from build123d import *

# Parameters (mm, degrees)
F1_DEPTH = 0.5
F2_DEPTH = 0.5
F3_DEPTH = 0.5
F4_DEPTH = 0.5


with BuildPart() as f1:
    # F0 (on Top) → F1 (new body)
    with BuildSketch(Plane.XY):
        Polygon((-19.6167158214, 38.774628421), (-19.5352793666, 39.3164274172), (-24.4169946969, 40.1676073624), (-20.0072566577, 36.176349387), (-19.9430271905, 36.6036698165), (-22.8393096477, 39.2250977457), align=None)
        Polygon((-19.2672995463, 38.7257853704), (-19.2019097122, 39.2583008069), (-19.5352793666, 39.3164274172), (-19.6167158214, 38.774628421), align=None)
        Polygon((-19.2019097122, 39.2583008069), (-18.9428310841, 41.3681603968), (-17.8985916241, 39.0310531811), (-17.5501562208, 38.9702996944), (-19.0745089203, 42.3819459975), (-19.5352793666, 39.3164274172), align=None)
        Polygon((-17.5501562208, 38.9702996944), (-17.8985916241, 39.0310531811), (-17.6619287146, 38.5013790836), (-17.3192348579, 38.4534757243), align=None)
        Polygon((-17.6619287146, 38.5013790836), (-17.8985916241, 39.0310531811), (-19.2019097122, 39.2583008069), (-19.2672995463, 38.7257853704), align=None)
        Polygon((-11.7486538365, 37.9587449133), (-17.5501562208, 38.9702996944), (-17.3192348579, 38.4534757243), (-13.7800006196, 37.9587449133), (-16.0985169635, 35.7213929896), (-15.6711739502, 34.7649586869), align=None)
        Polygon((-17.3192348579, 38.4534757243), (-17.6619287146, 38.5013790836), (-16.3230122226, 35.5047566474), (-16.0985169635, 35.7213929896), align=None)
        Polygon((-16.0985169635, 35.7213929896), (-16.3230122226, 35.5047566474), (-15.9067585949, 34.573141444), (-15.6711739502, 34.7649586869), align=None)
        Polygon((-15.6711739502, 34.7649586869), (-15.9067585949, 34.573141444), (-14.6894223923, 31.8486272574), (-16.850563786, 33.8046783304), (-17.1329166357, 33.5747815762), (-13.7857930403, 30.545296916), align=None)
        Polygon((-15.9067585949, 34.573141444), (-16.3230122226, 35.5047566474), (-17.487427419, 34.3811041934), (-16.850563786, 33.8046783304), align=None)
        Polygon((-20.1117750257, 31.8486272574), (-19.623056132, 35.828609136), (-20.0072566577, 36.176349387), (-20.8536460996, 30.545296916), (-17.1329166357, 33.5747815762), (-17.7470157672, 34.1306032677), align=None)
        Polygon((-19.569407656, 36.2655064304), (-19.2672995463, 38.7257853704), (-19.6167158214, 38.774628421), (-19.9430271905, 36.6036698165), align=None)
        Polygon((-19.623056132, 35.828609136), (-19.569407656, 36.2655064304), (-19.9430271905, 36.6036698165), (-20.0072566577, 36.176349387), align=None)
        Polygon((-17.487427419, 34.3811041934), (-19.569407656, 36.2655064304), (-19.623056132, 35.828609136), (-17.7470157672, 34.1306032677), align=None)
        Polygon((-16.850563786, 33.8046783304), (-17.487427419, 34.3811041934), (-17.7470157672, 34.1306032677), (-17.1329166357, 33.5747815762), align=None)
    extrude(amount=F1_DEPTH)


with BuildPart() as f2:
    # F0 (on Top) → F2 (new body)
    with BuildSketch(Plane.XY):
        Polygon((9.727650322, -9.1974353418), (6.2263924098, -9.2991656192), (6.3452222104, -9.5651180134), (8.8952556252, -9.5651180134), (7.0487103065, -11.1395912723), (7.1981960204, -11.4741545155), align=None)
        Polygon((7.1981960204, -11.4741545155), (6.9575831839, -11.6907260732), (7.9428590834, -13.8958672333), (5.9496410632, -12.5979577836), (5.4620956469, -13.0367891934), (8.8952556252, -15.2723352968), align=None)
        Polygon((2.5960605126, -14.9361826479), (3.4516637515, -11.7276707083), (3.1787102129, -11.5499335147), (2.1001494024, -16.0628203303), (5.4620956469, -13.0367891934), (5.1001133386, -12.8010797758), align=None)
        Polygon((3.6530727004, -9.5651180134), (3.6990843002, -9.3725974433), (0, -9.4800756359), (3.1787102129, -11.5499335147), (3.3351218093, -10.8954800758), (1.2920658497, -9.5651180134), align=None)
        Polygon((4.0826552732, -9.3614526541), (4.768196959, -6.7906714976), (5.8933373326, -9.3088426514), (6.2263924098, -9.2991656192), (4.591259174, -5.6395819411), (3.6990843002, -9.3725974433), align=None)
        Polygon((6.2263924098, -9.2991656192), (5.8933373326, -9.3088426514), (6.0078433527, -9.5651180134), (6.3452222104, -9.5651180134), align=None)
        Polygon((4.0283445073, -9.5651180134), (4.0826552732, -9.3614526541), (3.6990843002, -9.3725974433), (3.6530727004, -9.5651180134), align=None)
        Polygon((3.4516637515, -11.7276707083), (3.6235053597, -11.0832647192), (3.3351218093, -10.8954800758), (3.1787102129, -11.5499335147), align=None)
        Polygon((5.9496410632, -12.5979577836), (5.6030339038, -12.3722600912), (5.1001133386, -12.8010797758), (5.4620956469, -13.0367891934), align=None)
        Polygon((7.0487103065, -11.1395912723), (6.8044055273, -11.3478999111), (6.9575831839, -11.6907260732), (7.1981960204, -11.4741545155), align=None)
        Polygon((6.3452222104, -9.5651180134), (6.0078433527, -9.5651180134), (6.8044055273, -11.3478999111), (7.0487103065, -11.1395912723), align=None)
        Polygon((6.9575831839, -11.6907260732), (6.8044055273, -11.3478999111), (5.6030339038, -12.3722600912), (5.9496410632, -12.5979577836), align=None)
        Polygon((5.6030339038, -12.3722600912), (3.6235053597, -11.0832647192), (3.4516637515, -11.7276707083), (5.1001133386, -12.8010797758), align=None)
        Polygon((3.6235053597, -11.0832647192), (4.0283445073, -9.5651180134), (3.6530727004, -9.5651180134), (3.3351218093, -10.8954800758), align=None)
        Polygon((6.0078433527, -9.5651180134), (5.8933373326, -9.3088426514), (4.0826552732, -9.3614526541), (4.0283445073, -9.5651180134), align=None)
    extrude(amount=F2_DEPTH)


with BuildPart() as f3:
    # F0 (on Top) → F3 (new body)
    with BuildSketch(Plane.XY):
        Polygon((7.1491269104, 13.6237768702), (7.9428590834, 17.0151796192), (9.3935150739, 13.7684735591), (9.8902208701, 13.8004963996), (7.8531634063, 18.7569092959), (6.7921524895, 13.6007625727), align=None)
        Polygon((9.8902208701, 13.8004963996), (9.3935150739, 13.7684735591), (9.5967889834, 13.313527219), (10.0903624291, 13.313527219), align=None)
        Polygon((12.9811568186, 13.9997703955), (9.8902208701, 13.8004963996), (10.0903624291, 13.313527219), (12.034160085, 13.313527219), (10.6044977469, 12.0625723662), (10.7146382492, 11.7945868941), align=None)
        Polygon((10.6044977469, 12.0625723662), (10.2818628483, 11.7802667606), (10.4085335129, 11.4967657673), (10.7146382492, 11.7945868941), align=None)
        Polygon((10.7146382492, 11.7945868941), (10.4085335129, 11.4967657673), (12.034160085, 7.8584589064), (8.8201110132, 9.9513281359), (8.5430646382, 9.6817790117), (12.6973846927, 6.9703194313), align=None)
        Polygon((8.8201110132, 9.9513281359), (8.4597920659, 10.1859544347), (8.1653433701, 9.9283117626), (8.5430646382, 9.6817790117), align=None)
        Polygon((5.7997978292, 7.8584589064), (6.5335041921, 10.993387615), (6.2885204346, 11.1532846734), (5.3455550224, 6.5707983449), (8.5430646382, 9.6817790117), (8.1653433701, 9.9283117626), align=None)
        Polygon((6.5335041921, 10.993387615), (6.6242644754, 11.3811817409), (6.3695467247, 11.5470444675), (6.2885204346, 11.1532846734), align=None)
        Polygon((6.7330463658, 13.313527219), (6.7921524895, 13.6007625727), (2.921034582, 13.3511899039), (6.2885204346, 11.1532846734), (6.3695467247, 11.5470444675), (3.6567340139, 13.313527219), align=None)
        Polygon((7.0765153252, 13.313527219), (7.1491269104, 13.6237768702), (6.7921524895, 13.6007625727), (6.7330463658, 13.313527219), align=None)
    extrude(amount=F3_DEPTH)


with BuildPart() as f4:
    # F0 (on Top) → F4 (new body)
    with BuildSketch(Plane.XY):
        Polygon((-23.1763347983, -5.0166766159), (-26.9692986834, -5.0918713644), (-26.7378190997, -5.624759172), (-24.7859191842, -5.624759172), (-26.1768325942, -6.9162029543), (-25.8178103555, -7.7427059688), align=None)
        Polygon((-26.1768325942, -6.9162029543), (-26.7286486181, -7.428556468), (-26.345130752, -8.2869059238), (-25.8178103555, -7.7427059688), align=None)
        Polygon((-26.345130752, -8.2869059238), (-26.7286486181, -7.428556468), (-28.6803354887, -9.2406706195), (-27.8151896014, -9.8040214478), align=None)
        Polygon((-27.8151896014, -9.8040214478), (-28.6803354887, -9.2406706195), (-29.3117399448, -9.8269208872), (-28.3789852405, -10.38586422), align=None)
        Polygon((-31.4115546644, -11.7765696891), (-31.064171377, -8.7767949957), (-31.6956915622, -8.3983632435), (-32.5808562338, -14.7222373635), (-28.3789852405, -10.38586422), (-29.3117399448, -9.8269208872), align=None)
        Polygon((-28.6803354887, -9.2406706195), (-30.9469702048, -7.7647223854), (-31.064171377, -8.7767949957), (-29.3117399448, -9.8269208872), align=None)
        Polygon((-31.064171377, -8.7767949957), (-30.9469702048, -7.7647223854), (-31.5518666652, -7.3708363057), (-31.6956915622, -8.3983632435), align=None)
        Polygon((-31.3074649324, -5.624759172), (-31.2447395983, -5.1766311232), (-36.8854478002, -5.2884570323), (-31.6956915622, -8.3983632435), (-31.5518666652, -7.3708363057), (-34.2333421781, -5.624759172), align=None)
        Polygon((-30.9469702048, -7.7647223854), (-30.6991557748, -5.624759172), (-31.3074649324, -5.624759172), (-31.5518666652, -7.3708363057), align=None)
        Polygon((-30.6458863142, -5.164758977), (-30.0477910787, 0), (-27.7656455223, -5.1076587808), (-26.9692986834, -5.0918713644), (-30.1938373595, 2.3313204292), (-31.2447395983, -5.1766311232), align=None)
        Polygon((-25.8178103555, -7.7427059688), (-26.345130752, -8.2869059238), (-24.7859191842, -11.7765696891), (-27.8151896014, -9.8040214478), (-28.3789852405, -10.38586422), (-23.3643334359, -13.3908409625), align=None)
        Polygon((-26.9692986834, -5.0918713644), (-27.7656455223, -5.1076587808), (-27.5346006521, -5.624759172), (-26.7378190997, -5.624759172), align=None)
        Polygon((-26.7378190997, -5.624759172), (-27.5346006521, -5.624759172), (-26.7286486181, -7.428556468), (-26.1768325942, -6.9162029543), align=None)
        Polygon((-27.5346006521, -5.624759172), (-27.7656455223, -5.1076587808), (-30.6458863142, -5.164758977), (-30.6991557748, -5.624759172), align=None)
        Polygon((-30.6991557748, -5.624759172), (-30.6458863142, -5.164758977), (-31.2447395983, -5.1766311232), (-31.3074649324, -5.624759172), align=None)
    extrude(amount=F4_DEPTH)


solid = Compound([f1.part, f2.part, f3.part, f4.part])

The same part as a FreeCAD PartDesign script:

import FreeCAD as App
import Part
import Sketcher

V = App.Vector

doc = App.newDocument("Part")
params = doc.addObject("Spreadsheet::Sheet", "Params")
for row, (alias, value) in enumerate([
    ("pad1_length", "0.5 mm"),
    ("pad2_length", "0.5 mm"),
    ("pad3_length", "0.5 mm"),
    ("pad4_length", "0.5 mm"),
], start=1):
    params.set(f"A{row}", alias)
    params.set(f"B{row}", "=" + value)
    params.setAlias(f"B{row}", alias)

body = doc.addObject("PartDesign::Body", "Body")

sketch1 = body.newObject("Sketcher::SketchObject", "Sketch")
sketch1.AttachmentSupport = (doc.getObject("XY_Plane"), [""])
sketch1.MapMode = "FlatFace"
sketch1.addGeometry(Part.LineSegment(V(-20.9, 30.5, 0), V(-17.1, 33.6, 0)), False)
sketch1.addGeometry(Part.LineSegment(V(-17.1, 33.6, 0), V(-13.8, 30.5, 0)), False)
sketch1.addGeometry(Part.LineSegment(V(-13.8, 30.5, 0), V(-15.7, 34.8, 0)), False)
sketch1.addGeometry(Part.LineSegment(V(-15.7, 34.8, 0), V(-11.7, 38, 0)), False)
sketch1.addGeometry(Part.LineSegment(V(-11.7, 38, 0), V(-17.6, 39, 0)), False)
sketch1.addGeometry(Part.LineSegment(V(-17.6, 39, 0), V(-19.1, 42.4, 0)), False)
sketch1.addGeometry(Part.LineSegment(V(-19.1, 42.4, 0), V(-19.5, 39.3, 0)), False)
sketch1.addGeometry(Part.LineSegment(V(-19.5, 39.3, 0), V(-24.4, 40.2, 0)), False)
sketch1.addGeometry(Part.LineSegment(V(-24.4, 40.2, 0), V(-20, 36.2, 0)), False)
sketch1.addGeometry(Part.LineSegment(V(-20, 36.2, 0), V(-20.9, 30.5, 0)), False)
sketch1.addGeometry(Part.LineSegment(V(-19.6, 35.8, 0), V(-17.7, 34.1, 0)), False)
sketch1.addGeometry(Part.LineSegment(V(-17.7, 34.1, 0), V(-20.1, 31.8, 0)), False)
sketch1.addGeometry(Part.LineSegment(V(-20.1, 31.8, 0), V(-19.6, 35.8, 0)), False)
sketch1.addGeometry(Part.LineSegment(V(-14.7, 31.8, 0), V(-16.9, 33.8, 0)), False)
sketch1.addGeometry(Part.LineSegment(V(-16.9, 33.8, 0), V(-15.9, 34.6, 0)), False)
sketch1.addGeometry(Part.LineSegment(V(-15.9, 34.6, 0), V(-14.7, 31.8, 0)), False)
sketch1.addGeometry(Part.LineSegment(V(-16.3, 35.5, 0), V(-17.5, 34.4, 0)), False)
sketch1.addGeometry(Part.LineSegment(V(-17.5, 34.4, 0), V(-19.6, 36.3, 0)), False)
sketch1.addGeometry(Part.LineSegment(V(-19.6, 36.3, 0), V(-19.3, 38.7, 0)), False)
sketch1.addGeometry(Part.LineSegment(V(-19.3, 38.7, 0), V(-17.7, 38.5, 0)), False)
sketch1.addGeometry(Part.LineSegment(V(-17.7, 38.5, 0), V(-16.3, 35.5, 0)), False)
sketch1.addGeometry(Part.LineSegment(V(-19.6, 38.8, 0), V(-19.9, 36.6, 0)), False)
sketch1.addGeometry(Part.LineSegment(V(-19.9, 36.6, 0), V(-22.8, 39.2, 0)), False)
sketch1.addGeometry(Part.LineSegment(V(-22.8, 39.2, 0), V(-19.6, 38.8, 0)), False)
sketch1.addGeometry(Part.LineSegment(V(-19.2, 39.3, 0), V(-18.9, 41.4, 0)), False)
sketch1.addGeometry(Part.LineSegment(V(-18.9, 41.4, 0), V(-17.9, 39, 0)), False)
sketch1.addGeometry(Part.LineSegment(V(-17.9, 39, 0), V(-19.2, 39.3, 0)), False)
sketch1.addGeometry(Part.LineSegment(V(-13.8, 38, 0), V(-16.1, 35.7, 0)), False)
sketch1.addGeometry(Part.LineSegment(V(-16.1, 35.7, 0), V(-17.3, 38.5, 0)), False)
sketch1.addGeometry(Part.LineSegment(V(-17.3, 38.5, 0), V(-13.8, 38, 0)), False)
sketch1.addConstraint(Sketcher.Constraint("Coincident", 0, 2, 1, 1))
sketch1.addConstraint(Sketcher.Constraint("Coincident", 1, 2, 2, 1))
sketch1.addConstraint(Sketcher.Constraint("Coincident", 2, 2, 3, 1))
sketch1.addConstraint(Sketcher.Constraint("Coincident", 3, 2, 4, 1))
sketch1.addConstraint(Sketcher.Constraint("Coincident", 4, 2, 5, 1))
sketch1.addConstraint(Sketcher.Constraint("Coincident", 5, 2, 6, 1))
sketch1.addConstraint(Sketcher.Constraint("Coincident", 6, 2, 7, 1))
sketch1.addConstraint(Sketcher.Constraint("Coincident", 7, 2, 8, 1))
sketch1.addConstraint(Sketcher.Constraint("Coincident", 8, 2, 9, 1))
sketch1.addConstraint(Sketcher.Constraint("Coincident", 9, 2, 0, 1))
sketch1.addConstraint(Sketcher.Constraint("Coincident", 10, 2, 11, 1))
sketch1.addConstraint(Sketcher.Constraint("Coincident", 11, 2, 12, 1))
sketch1.addConstraint(Sketcher.Constraint("Coincident", 12, 2, 10, 1))
sketch1.addConstraint(Sketcher.Constraint("Coincident", 13, 2, 14, 1))
sketch1.addConstraint(Sketcher.Constraint("Coincident", 14, 2, 15, 1))
sketch1.addConstraint(Sketcher.Constraint("Coincident", 15, 2, 13, 1))
sketch1.addConstraint(Sketcher.Constraint("Coincident", 16, 2, 17, 1))
sketch1.addConstraint(Sketcher.Constraint("Coincident", 17, 2, 18, 1))
sketch1.addConstraint(Sketcher.Constraint("Coincident", 18, 2, 19, 1))
sketch1.addConstraint(Sketcher.Constraint("Coincident", 19, 2, 20, 1))
sketch1.addConstraint(Sketcher.Constraint("Coincident", 20, 2, 16, 1))
sketch1.addConstraint(Sketcher.Constraint("Coincident", 21, 2, 22, 1))
sketch1.addConstraint(Sketcher.Constraint("Coincident", 22, 2, 23, 1))
sketch1.addConstraint(Sketcher.Constraint("Coincident", 23, 2, 21, 1))
sketch1.addConstraint(Sketcher.Constraint("Coincident", 24, 2, 25, 1))
sketch1.addConstraint(Sketcher.Constraint("Coincident", 25, 2, 26, 1))
sketch1.addConstraint(Sketcher.Constraint("Coincident", 26, 2, 24, 1))
sketch1.addConstraint(Sketcher.Constraint("Coincident", 27, 2, 28, 1))
sketch1.addConstraint(Sketcher.Constraint("Coincident", 28, 2, 29, 1))
sketch1.addConstraint(Sketcher.Constraint("Coincident", 29, 2, 27, 1))
sketch1.addConstraint(Sketcher.Constraint("Parallel", 0, 3))
sketch1.addConstraint(Sketcher.Constraint("Parallel", 2, 5))
sketch1.addConstraint(Sketcher.Constraint("Parallel", 4, 7))
sketch1.addConstraint(Sketcher.Constraint("Parallel", 1, 8))
sketch1.addConstraint(Sketcher.Constraint("Parallel", 6, 9))
sketch1.addConstraint(Sketcher.Constraint("Parallel", 8, 10))
sketch1.addConstraint(Sketcher.Constraint("Parallel", 10, 13))
sketch1.addConstraint(Sketcher.Constraint("Parallel", 3, 14))
sketch1.addConstraint(Sketcher.Constraint("Parallel", 5, 15))
sketch1.addConstraint(Sketcher.Constraint("Parallel", 11, 16))
sketch1.addConstraint(Sketcher.Constraint("Parallel", 13, 17))
sketch1.addConstraint(Sketcher.Constraint("Parallel", 12, 18))
sketch1.addConstraint(Sketcher.Constraint("Parallel", 15, 20))
sketch1.addConstraint(Sketcher.Constraint("Parallel", 9, 21))
sketch1.addConstraint(Sketcher.Constraint("Parallel", 17, 22))
sketch1.addConstraint(Sketcher.Constraint("Parallel", 19, 23))
sketch1.addConstraint(Sketcher.Constraint("Parallel", 18, 24))
sketch1.addConstraint(Sketcher.Constraint("Parallel", 20, 25))
sketch1.addConstraint(Sketcher.Constraint("Parallel", 7, 26))
sketch1.addConstraint(Sketcher.Constraint("Parallel", 16, 27))
sketch1.addConstraint(Sketcher.Constraint("Parallel", 25, 28))
sketch1.addConstraint(Sketcher.Constraint("Parallel", 23, 29))
sketch1.addConstraint(Sketcher.Constraint("Horizontal", 1, 2, 9, 2))
sketch1.addConstraint(Sketcher.Constraint("Horizontal", 11, 2, 15, 2))
sketch1.addConstraint(Sketcher.Constraint("Horizontal", 3, 2, 29, 2))
sketch1.addConstraint(Sketcher.Constraint("DistanceX", 29, 2, -1, 1, 13.780001))
sketch1.addConstraint(Sketcher.Constraint("DistanceY", 4, 2, 26, 2, 0.288001))
sketch1.addConstraint(Sketcher.Constraint("DistanceY", -1, 1, 4, 2, 38.9703))
sketch1.addConstraint(Sketcher.Constraint("DistanceX", 18, 2, -1, 1, 19.2673))
sketch1.addConstraint(Sketcher.Constraint("DistanceY", 3, 2, 5, 2, 4.423201))
sketch1.addConstraint(Sketcher.Constraint("DistanceX", 8, 2, 4, 2, 2.4571))
sketch1.addConstraint(Sketcher.Constraint("DistanceX", 10, 2, 0, 2, 0.614099))
sketch1.addConstraint(Sketcher.Constraint("DistanceX", 11, 2, 2, 2, 4.440601))
sketch1.addConstraint(Sketcher.Constraint("DistanceX", 8, 2, 12, 2, 0.384201))
sketch1.addConstraint(Sketcher.Constraint("DistanceY", 10, 2, 16, 2, 0.250501))
sketch1.addConstraint(Sketcher.Constraint("DistanceY", 23, 2, 6, 2, 0.541799))
sketch1.addConstraint(Sketcher.Constraint("Distance", 2, 4.62171))
sketch1.addConstraint(Sketcher.Constraint("Distance", 4, 5.88903))
sketch1.addConstraint(Sketcher.Constraint("Distance", 11, 3.286259))
sketch1.addConstraint(Sketcher.Constraint("Distance", 14, 1.217088))
sketch1.addConstraint(Sketcher.Constraint("Distance", 18, 2.478758))
sketch1.addConstraint(Sketcher.Constraint("Distance", 19, 1.620979))
sketch1.addConstraint(Sketcher.Constraint("Distance", 20, 3.28214))
sketch1.addConstraint(Sketcher.Constraint("Distance", 22, 3.906448))
sketch1.addConstraint(Sketcher.Constraint("Distance", 26, 1.322981))
sketch1.addConstraint(Sketcher.Constraint("DistanceY", -1, 1, 0, 2, 33.574782))
sketch1.addConstraint(Sketcher.Constraint("DistanceY", -1, 1, 2, 2, 34.764959))
sketch1.addConstraint(Sketcher.Constraint("DistanceX", 5, 2, -1, 1, 19.074509))
sketch1.addConstraint(Sketcher.Constraint("DistanceX", 6, 2, -1, 1, 19.535279))
sketch1.addConstraint(Sketcher.Constraint("DistanceY", -1, 1, 8, 2, 36.176349))
sketch1.addConstraint(Sketcher.Constraint("DistanceY", -1, 1, 12, 2, 35.828609))
sketch1.addConstraint(Sketcher.Constraint("DistanceY", -1, 1, 13, 2, 33.804678))
sketch1.addConstraint(Sketcher.Constraint("DistanceX", 14, 2, -1, 1, 15.906759))
sketch1.addConstraint(Sketcher.Constraint("DistanceY", -1, 1, 14, 2, 34.573141))
sketch1.addConstraint(Sketcher.Constraint("DistanceX", 19, 2, -1, 1, 17.661929))
sketch1.addConstraint(Sketcher.Constraint("DistanceY", -1, 1, 19, 2, 38.501379))
sketch1.addConstraint(Sketcher.Constraint("DistanceY", -1, 1, 21, 2, 36.60367))
sketch1.addConstraint(Sketcher.Constraint("DistanceX", 22, 2, -1, 1, 22.83931))
sketch1.addConstraint(Sketcher.Constraint("DistanceX", 24, 2, -1, 1, 18.942831))
sketch1.addConstraint(Sketcher.Constraint("DistanceX", 27, 2, 14, 2, 0.191758))
pad1 = body.newObject("PartDesign::Pad", "Pad")
pad1.Profile = sketch1
pad1.setExpression("Length", "Params.pad1_length")
body2 = doc.addObject("PartDesign::Body", "Body001")

sketch2 = body2.newObject("Sketcher::SketchObject", "Sketch001")
sketch2.AttachmentSupport = (doc.getObject("XY_Plane001"), [""])
sketch2.MapMode = "FlatFace"
sketch2.addGeometry(Part.LineSegment(V(8.9, -15.3, 0), V(7.2, -11.5, 0)), False)
sketch2.addGeometry(Part.LineSegment(V(7.2, -11.5, 0), V(9.7, -9.2, 0)), False)
sketch2.addGeometry(Part.LineSegment(V(9.7, -9.2, 0), V(6.2, -9.3, 0)), False)
sketch2.addGeometry(Part.LineSegment(V(6.2, -9.3, 0), V(4.6, -5.6, 0)), False)
sketch2.addGeometry(Part.LineSegment(V(4.6, -5.6, 0), V(3.7, -9.4, 0)), False)
sketch2.addGeometry(Part.LineSegment(V(3.7, -9.4, 0), V(0, -9.5, 0)), False)
sketch2.addGeometry(Part.LineSegment(V(0, -9.5, 0), V(3.2, -11.5, 0)), False)
sketch2.addGeometry(Part.LineSegment(V(3.2, -11.5, 0), V(2.1, -16.1, 0)), False)
sketch2.addGeometry(Part.LineSegment(V(2.1, -16.1, 0), V(5.5, -13, 0)), False)
sketch2.addGeometry(Part.LineSegment(V(5.5, -13, 0), V(8.9, -15.3, 0)), False)
sketch2.addGeometry(Part.LineSegment(V(8.9, -9.6, 0), V(7, -11.1, 0)), False)
sketch2.addGeometry(Part.LineSegment(V(7, -11.1, 0), V(6.3, -9.6, 0)), False)
sketch2.addGeometry(Part.LineSegment(V(6.3, -9.6, 0), V(8.9, -9.6, 0)), False)
sketch2.addGeometry(Part.LineSegment(V(7, -11.7, 0), V(7.9, -13.9, 0)), False)
sketch2.addGeometry(Part.LineSegment(V(7.9, -13.9, 0), V(5.9, -12.6, 0)), False)
sketch2.addGeometry(Part.LineSegment(V(5.9, -12.6, 0), V(7, -11.7, 0)), False)
sketch2.addGeometry(Part.LineSegment(V(5.1, -12.8, 0), V(2.6, -14.9, 0)), False)
sketch2.addGeometry(Part.LineSegment(V(2.6, -14.9, 0), V(3.5, -11.7, 0)), False)
sketch2.addGeometry(Part.LineSegment(V(3.5, -11.7, 0), V(5.1, -12.8, 0)), False)
sketch2.addGeometry(Part.LineSegment(V(3.3, -10.9, 0), V(1.3, -9.6, 0)), False)
sketch2.addGeometry(Part.LineSegment(V(1.3, -9.6, 0), V(3.7, -9.6, 0)), False)
sketch2.addGeometry(Part.LineSegment(V(3.7, -9.6, 0), V(3.3, -10.9, 0)), False)
sketch2.addGeometry(Part.LineSegment(V(4.1, -9.4, 0), V(4.8, -6.8, 0)), False)
sketch2.addGeometry(Part.LineSegment(V(4.8, -6.8, 0), V(5.9, -9.3, 0)), False)
sketch2.addGeometry(Part.LineSegment(V(5.9, -9.3, 0), V(4.1, -9.4, 0)), False)
sketch2.addGeometry(Part.LineSegment(V(6, -9.6, 0), V(6.8, -11.3, 0)), False)
sketch2.addGeometry(Part.LineSegment(V(6.8, -11.3, 0), V(5.6, -12.4, 0)), False)
sketch2.addGeometry(Part.LineSegment(V(5.6, -12.4, 0), V(3.6, -11.1, 0)), False)
sketch2.addGeometry(Part.LineSegment(V(3.6, -11.1, 0), V(4, -9.6, 0)), False)
sketch2.addGeometry(Part.LineSegment(V(4, -9.6, 0), V(6, -9.6, 0)), False)
sketch2.addConstraint(Sketcher.Constraint("Coincident", 0, 2, 1, 1))
sketch2.addConstraint(Sketcher.Constraint("Coincident", 1, 2, 2, 1))
sketch2.addConstraint(Sketcher.Constraint("Coincident", 2, 2, 3, 1))
sketch2.addConstraint(Sketcher.Constraint("Coincident", 3, 2, 4, 1))
sketch2.addConstraint(Sketcher.Constraint("Coincident", 4, 2, 5, 1))
sketch2.addConstraint(Sketcher.Constraint("Coincident", 5, 2, 6, 1))
sketch2.addConstraint(Sketcher.Constraint("Coincident", 6, 2, 7, 1))
sketch2.addConstraint(Sketcher.Constraint("Coincident", 7, 2, 8, 1))
sketch2.addConstraint(Sketcher.Constraint("Coincident", 8, 2, 9, 1))
sketch2.addConstraint(Sketcher.Constraint("Coincident", 9, 2, 0, 1))
sketch2.addConstraint(Sketcher.Constraint("Coincident", 10, 2, 11, 1))
sketch2.addConstraint(Sketcher.Constraint("Coincident", 11, 2, 12, 1))
sketch2.addConstraint(Sketcher.Constraint("Coincident", 12, 2, 10, 1))
sketch2.addConstraint(Sketcher.Constraint("Coincident", 13, 2, 14, 1))
sketch2.addConstraint(Sketcher.Constraint("Coincident", 14, 2, 15, 1))
sketch2.addConstraint(Sketcher.Constraint("Coincident", 15, 2, 13, 1))
sketch2.addConstraint(Sketcher.Constraint("Coincident", 16, 2, 17, 1))
sketch2.addConstraint(Sketcher.Constraint("Coincident", 17, 2, 18, 1))
sketch2.addConstraint(Sketcher.Constraint("Coincident", 18, 2, 16, 1))
sketch2.addConstraint(Sketcher.Constraint("Coincident", 19, 2, 20, 1))
sketch2.addConstraint(Sketcher.Constraint("Coincident", 20, 2, 21, 1))
sketch2.addConstraint(Sketcher.Constraint("Coincident", 21, 2, 19, 1))
sketch2.addConstraint(Sketcher.Constraint("Coincident", 22, 2, 23, 1))
sketch2.addConstraint(Sketcher.Constraint("Coincident", 23, 2, 24, 1))
sketch2.addConstraint(Sketcher.Constraint("Coincident", 24, 2, 22, 1))
sketch2.addConstraint(Sketcher.Constraint("Coincident", 25, 2, 26, 1))
sketch2.addConstraint(Sketcher.Constraint("Coincident", 26, 2, 27, 1))
sketch2.addConstraint(Sketcher.Constraint("Coincident", 27, 2, 28, 1))
sketch2.addConstraint(Sketcher.Constraint("Coincident", 28, 2, 29, 1))
sketch2.addConstraint(Sketcher.Constraint("Coincident", 29, 2, 25, 1))
sketch2.addConstraint(Sketcher.Constraint("Horizontal", 12))
sketch2.addConstraint(Sketcher.Constraint("Horizontal", 20))
sketch2.addConstraint(Sketcher.Constraint("Horizontal", 29))
sketch2.addConstraint(Sketcher.Constraint("PointOnObject", 5, 2, -2))
sketch2.addConstraint(Sketcher.Constraint("Parallel", 0, 3))
sketch2.addConstraint(Sketcher.Constraint("Parallel", 2, 5))
sketch2.addConstraint(Sketcher.Constraint("Parallel", 4, 7))
sketch2.addConstraint(Sketcher.Constraint("Parallel", 1, 8))
sketch2.addConstraint(Sketcher.Constraint("Parallel", 6, 9))
sketch2.addConstraint(Sketcher.Constraint("Parallel", 3, 11))
sketch2.addConstraint(Sketcher.Constraint("Parallel", 11, 13))
sketch2.addConstraint(Sketcher.Constraint("Parallel", 9, 14))
sketch2.addConstraint(Sketcher.Constraint("Parallel", 8, 15))
sketch2.addConstraint(Sketcher.Constraint("Parallel", 10, 16))
sketch2.addConstraint(Sketcher.Constraint("Parallel", 14, 18))
sketch2.addConstraint(Sketcher.Constraint("Parallel", 18, 19))
sketch2.addConstraint(Sketcher.Constraint("Parallel", 7, 21))
sketch2.addConstraint(Sketcher.Constraint("Parallel", 17, 22))
sketch2.addConstraint(Sketcher.Constraint("Parallel", 13, 23))
sketch2.addConstraint(Sketcher.Constraint("Parallel", 5, 24))
sketch2.addConstraint(Sketcher.Constraint("Parallel", 23, 25))
sketch2.addConstraint(Sketcher.Constraint("Parallel", 16, 26))
sketch2.addConstraint(Sketcher.Constraint("Parallel", 19, 27))
sketch2.addConstraint(Sketcher.Constraint("Parallel", 22, 28))
sketch2.addConstraint(Sketcher.Constraint("Horizontal", 12, 2, 19, 2))
sketch2.addConstraint(Sketcher.Constraint("Horizontal", 20, 2, 28, 2))
sketch2.addConstraint(Sketcher.Constraint("Vertical", 9, 2, 12, 2))
sketch2.addConstraint(Sketcher.Constraint("DistanceX", 29, 1, 29, 2, 1.979499))
sketch2.addConstraint(Sketcher.Constraint("Distance", 26, 1.578799))
sketch2.addConstraint(Sketcher.Constraint("Distance", 28, 1.571198))
sketch2.addConstraint(Sketcher.Constraint("DistanceY", 25, 2, -1, 1, 11.3479))
sketch2.addConstraint(Sketcher.Constraint("DistanceX", 8, 2, 0, 2, 1.7361))
sketch2.addConstraint(Sketcher.Constraint("DistanceY", 9, 2, 1, 2, 6.0749))
sketch2.addConstraint(Sketcher.Constraint("DistanceY", 9, 2, 6, 2, 3.722402))
sketch2.addConstraint(Sketcher.Constraint("Distance", 0, 4.160071))
sketch2.addConstraint(Sketcher.Constraint("Distance", 3, 4.008268))
sketch2.addConstraint(Sketcher.Constraint("Distance", 4, 3.838148))
sketch2.addConstraint(Sketcher.Constraint("Distance", 6, 3.793219))
sketch2.addConstraint(Sketcher.Constraint("Distance", 9, 4.096859))
sketch2.addConstraint(Sketcher.Constraint("Distance", 11, 1.724489))
sketch2.addConstraint(Sketcher.Constraint("Distance", 18, 1.967128))
sketch2.addConstraint(Sketcher.Constraint("Distance", 19, 2.43802))
sketch2.addConstraint(Sketcher.Constraint("Distance", 21, 1.367829))
sketch2.addConstraint(Sketcher.Constraint("Distance", 27, 2.362211))
sketch2.addConstraint(Sketcher.Constraint("DistanceX", 12, 1, 12, 2, 2.550033))
sketch2.addConstraint(Sketcher.Constraint("DistanceX", 20, 1, 20, 2, 2.361007))
sketch2.addConstraint(Sketcher.Constraint("DistanceX", -1, 1, 1, 2, 9.72765))
sketch2.addConstraint(Sketcher.Constraint("DistanceX", -1, 1, 3, 2, 4.591259))
sketch2.addConstraint(Sketcher.Constraint("DistanceY", 3, 2, -1, 1, 5.639582))
sketch2.addConstraint(Sketcher.Constraint("DistanceX", -1, 1, 7, 2, 2.100149))
sketch2.addConstraint(Sketcher.Constraint("DistanceX", -1, 1, 13, 2, 7.942859))
sketch2.addConstraint(Sketcher.Constraint("DistanceX", -1, 1, 14, 2, 5.949641))
sketch2.addConstraint(Sketcher.Constraint("DistanceX", -1, 1, 16, 2, 2.596061))
sketch2.addConstraint(Sketcher.Constraint("DistanceY", 17, 2, -1, 1, 11.727671))
sketch2.addConstraint(Sketcher.Constraint("DistanceX", -1, 1, 21, 2, 3.335122))
sketch2.addConstraint(Sketcher.Constraint("DistanceY", 22, 2, -1, 1, 6.790671))
sketch2.addConstraint(Sketcher.Constraint("DistanceY", 9, 2, 13, 2, 1.376468))
sketch2.addConstraint(Sketcher.Constraint("DistanceY", 10, 2, 23, 2, 1.830749))
sketch2.addConstraint(Sketcher.Constraint("DistanceX", 4, 2, 24, 2, 0.383571))
sketch2.addConstraint(Sketcher.Constraint("DistanceX", 25, 2, 0, 2, 0.39379))
pad2 = body2.newObject("PartDesign::Pad", "Pad001")
pad2.Profile = sketch2
pad2.setExpression("Length", "Params.pad2_length")
body3 = doc.addObject("PartDesign::Body", "Body002")

sketch3 = body3.newObject("Sketcher::SketchObject", "Sketch002")
sketch3.AttachmentSupport = (doc.getObject("XY_Plane002"), [""])
sketch3.MapMode = "FlatFace"
sketch3.addGeometry(Part.LineSegment(V(7.853163, 18.756909, 0), V(6.792152, 13.600763, 0)), False)
sketch3.addGeometry(Part.LineSegment(V(6.792152, 13.600763, 0), V(2.921035, 13.35119, 0)), False)
sketch3.addGeometry(Part.LineSegment(V(2.921035, 13.35119, 0), V(6.28852, 11.153285, 0)), False)
sketch3.addGeometry(Part.LineSegment(V(6.28852, 11.153285, 0), V(5.345555, 6.570798, 0)), False)
sketch3.addGeometry(Part.LineSegment(V(5.345555, 6.570798, 0), V(8.543065, 9.681779, 0)), False)
sketch3.addGeometry(Part.LineSegment(V(8.543065, 9.681779, 0), V(12.697385, 6.970319, 0)), False)
sketch3.addGeometry(Part.LineSegment(V(12.697385, 6.970319, 0), V(10.714638, 11.794587, 0)), False)
sketch3.addGeometry(Part.LineSegment(V(10.714638, 11.794587, 0), V(12.981157, 13.99977, 0)), False)
sketch3.addGeometry(Part.LineSegment(V(12.981157, 13.99977, 0), V(9.890221, 13.800496, 0)), False)
sketch3.addGeometry(Part.LineSegment(V(9.890221, 13.800496, 0), V(7.853163, 18.756909, 0)), False)
sketch3.addGeometry(Part.LineSegment(V(3.656734, 13.313527, 0), V(7.076515, 13.313527, 0)), False)
sketch3.addGeometry(Part.LineSegment(V(7.076515, 13.313527, 0), V(7.149127, 13.623777, 0)), False)
sketch3.addGeometry(Part.LineSegment(V(7.149127, 13.623777, 0), V(7.942859, 17.01518, 0)), False)
sketch3.addGeometry(Part.LineSegment(V(7.942859, 17.01518, 0), V(9.393515, 13.768474, 0)), False)
sketch3.addGeometry(Part.LineSegment(V(9.393515, 13.768474, 0), V(9.596789, 13.313527, 0)), False)
sketch3.addGeometry(Part.LineSegment(V(9.596789, 13.313527, 0), V(12.03416, 13.313527, 0)), False)
sketch3.addGeometry(Part.LineSegment(V(12.03416, 13.313527, 0), V(10.604498, 12.062572, 0)), False)
sketch3.addGeometry(Part.LineSegment(V(10.604498, 12.062572, 0), V(10.281863, 11.780267, 0)), False)
sketch3.addGeometry(Part.LineSegment(V(10.281863, 11.780267, 0), V(10.408534, 11.496766, 0)), False)
sketch3.addGeometry(Part.LineSegment(V(10.408534, 11.496766, 0), V(12.03416, 7.858459, 0)), False)
sketch3.addGeometry(Part.LineSegment(V(12.03416, 7.858459, 0), V(8.820111, 9.951328, 0)), False)
sketch3.addGeometry(Part.LineSegment(V(8.820111, 9.951328, 0), V(8.459792, 10.185954, 0)), False)
sketch3.addGeometry(Part.LineSegment(V(8.459792, 10.185954, 0), V(8.165343, 9.928312, 0)), False)
sketch3.addGeometry(Part.LineSegment(V(8.165343, 9.928312, 0), V(5.799798, 7.858459, 0)), False)
sketch3.addGeometry(Part.LineSegment(V(5.799798, 7.858459, 0), V(6.533504, 10.993388, 0)), False)
sketch3.addGeometry(Part.LineSegment(V(6.533504, 10.993388, 0), V(6.624264, 11.381182, 0)), False)
sketch3.addGeometry(Part.LineSegment(V(6.624264, 11.381182, 0), V(6.369547, 11.547044, 0)), False)
sketch3.addGeometry(Part.LineSegment(V(6.369547, 11.547044, 0), V(3.656734, 13.313527, 0)), False)
sketch3.addConstraint(Sketcher.Constraint("Coincident", 0, 2, 1, 1))
sketch3.addConstraint(Sketcher.Constraint("Coincident", 1, 2, 2, 1))
sketch3.addConstraint(Sketcher.Constraint("Coincident", 2, 2, 3, 1))
sketch3.addConstraint(Sketcher.Constraint("Coincident", 3, 2, 4, 1))
sketch3.addConstraint(Sketcher.Constraint("Coincident", 4, 2, 5, 1))
sketch3.addConstraint(Sketcher.Constraint("Coincident", 5, 2, 6, 1))
sketch3.addConstraint(Sketcher.Constraint("Coincident", 6, 2, 7, 1))
sketch3.addConstraint(Sketcher.Constraint("Coincident", 7, 2, 8, 1))
sketch3.addConstraint(Sketcher.Constraint("Coincident", 8, 2, 9, 1))
sketch3.addConstraint(Sketcher.Constraint("Coincident", 9, 2, 0, 1))
sketch3.addConstraint(Sketcher.Constraint("Coincident", 10, 2, 11, 1))
sketch3.addConstraint(Sketcher.Constraint("Coincident", 11, 2, 12, 1))
sketch3.addConstraint(Sketcher.Constraint("Coincident", 12, 2, 13, 1))
sketch3.addConstraint(Sketcher.Constraint("Coincident", 13, 2, 14, 1))
sketch3.addConstraint(Sketcher.Constraint("Coincident", 14, 2, 15, 1))
sketch3.addConstraint(Sketcher.Constraint("Coincident", 15, 2, 16, 1))
sketch3.addConstraint(Sketcher.Constraint("Coincident", 16, 2, 17, 1))
sketch3.addConstraint(Sketcher.Constraint("Coincident", 17, 2, 18, 1))
sketch3.addConstraint(Sketcher.Constraint("Coincident", 18, 2, 19, 1))
sketch3.addConstraint(Sketcher.Constraint("Coincident", 19, 2, 20, 1))
sketch3.addConstraint(Sketcher.Constraint("Coincident", 20, 2, 21, 1))
sketch3.addConstraint(Sketcher.Constraint("Coincident", 21, 2, 22, 1))
sketch3.addConstraint(Sketcher.Constraint("Coincident", 22, 2, 23, 1))
sketch3.addConstraint(Sketcher.Constraint("Coincident", 23, 2, 24, 1))
sketch3.addConstraint(Sketcher.Constraint("Coincident", 24, 2, 25, 1))
sketch3.addConstraint(Sketcher.Constraint("Coincident", 25, 2, 26, 1))
sketch3.addConstraint(Sketcher.Constraint("Coincident", 26, 2, 27, 1))
sketch3.addConstraint(Sketcher.Constraint("Coincident", 27, 2, 10, 1))
sketch3.addConstraint(Sketcher.Constraint("Horizontal", 10))
sketch3.addConstraint(Sketcher.Constraint("Horizontal", 15))
sketch3.addConstraint(Sketcher.Constraint("DistanceX", 10, 2, 13, 2, 2.317))
sketch3.addConstraint(Sketcher.Constraint("Distance", 3, 4.6785))
sketch3.addConstraint(Sketcher.Constraint("DistanceX", 10, 1, 10, 2, 3.419781))
sketch3.addConstraint(Sketcher.Constraint("DistanceX", 15, 1, 15, 2, 2.437371))
sketch3.addConstraint(Sketcher.Constraint("DistanceY", -1, 1, 3, 2, 6.570798))
sketch3.addConstraint(Sketcher.Constraint("DistanceX", 2, 2, 8, 2, 3.6017))
sketch3.addConstraint(Sketcher.Constraint("DistanceY", 16, 2, 13, 2, 1.705901))
sketch3.addConstraint(Sketcher.Constraint("DistanceY", 18, 2, 17, 2, 0.283501))
sketch3.addConstraint(Sketcher.Constraint("DistanceX", 1, 2, 27, 2, 0.735699))
sketch3.addConstraint(Sketcher.Constraint("Distance", 0, 5.26418))
sketch3.addConstraint(Sketcher.Constraint("Distance", 7, 3.162268))
sketch3.addConstraint(Sketcher.Constraint("Distance", 13, 3.556052))
sketch3.addConstraint(Sketcher.Constraint("Distance", 16, 1.89969))
sketch3.addConstraint(Sketcher.Constraint("Distance", 20, 3.83539))
sketch3.addConstraint(Sketcher.Constraint("Distance", 26, 0.30396))
sketch3.addConstraint(Sketcher.Constraint("DistanceY", -1, 1, 1, 2, 13.35119))
sketch3.addConstraint(Sketcher.Constraint("DistanceX", -1, 1, 2, 2, 6.28852))
sketch3.addConstraint(Sketcher.Constraint("DistanceY", -1, 1, 4, 2, 9.681779))
sketch3.addConstraint(Sketcher.Constraint("DistanceY", -1, 1, 5, 2, 6.970319))
sketch3.addConstraint(Sketcher.Constraint("DistanceX", -1, 1, 6, 2, 10.714638))
sketch3.addConstraint(Sketcher.Constraint("DistanceY", -1, 1, 7, 2, 13.99977))
sketch3.addConstraint(Sketcher.Constraint("DistanceY", -1, 1, 9, 2, 18.756909))
sketch3.addConstraint(Sketcher.Constraint("DistanceX", -1, 1, 12, 2, 7.942859))
sketch3.addConstraint(Sketcher.Constraint("DistanceY", -1, 1, 12, 2, 17.01518))
sketch3.addConstraint(Sketcher.Constraint("DistanceX", -1, 1, 14, 2, 9.596789))
sketch3.addConstraint(Sketcher.Constraint("DistanceX", -1, 1, 19, 2, 12.03416))
sketch3.addConstraint(Sketcher.Constraint("DistanceY", -1, 1, 19, 2, 7.858459))
sketch3.addConstraint(Sketcher.Constraint("DistanceX", -1, 1, 20, 2, 8.820111))
sketch3.addConstraint(Sketcher.Constraint("DistanceY", -1, 1, 22, 2, 9.928312))
sketch3.addConstraint(Sketcher.Constraint("DistanceY", -1, 1, 23, 2, 7.858459))
sketch3.addConstraint(Sketcher.Constraint("DistanceY", -1, 1, 25, 2, 11.381182))
sketch3.addConstraint(Sketcher.Constraint("DistanceX", 1, 2, 3, 2, 2.42452))
sketch3.addConstraint(Sketcher.Constraint("DistanceX", 3, 2, 4, 2, 3.19751))
sketch3.addConstraint(Sketcher.Constraint("DistanceX", 4, 2, 5, 2, 4.15432))
sketch3.addConstraint(Sketcher.Constraint("DistanceY", 3, 2, 6, 2, 5.223789))
sketch3.addConstraint(Sketcher.Constraint("DistanceY", 6, 2, 8, 2, 2.00591))
sketch3.addConstraint(Sketcher.Constraint("DistanceX", 0, 2, 8, 2, 3.098068))
sketch3.addConstraint(Sketcher.Constraint("DistanceY", 2, 2, 8, 2, 2.647212))
sketch3.addConstraint(Sketcher.Constraint("DistanceX", 0, 2, 9, 2, 1.061011))
sketch3.addConstraint(Sketcher.Constraint("DistanceY", 10, 2, 8, 2, 0.486969))
sketch3.addConstraint(Sketcher.Constraint("DistanceX", 10, 2, 11, 2, 0.072612))
sketch3.addConstraint(Sketcher.Constraint("DistanceY", 10, 2, 11, 2, 0.31025))
sketch3.addConstraint(Sketcher.Constraint("DistanceY", 14, 2, 8, 2, 0.486969))
sketch3.addConstraint(Sketcher.Constraint("DistanceY", 17, 2, 6, 2, 0.01432))
sketch3.addConstraint(Sketcher.Constraint("DistanceX", 8, 2, 17, 2, 0.391642))
sketch3.addConstraint(Sketcher.Constraint("DistanceX", 17, 2, 18, 2, 0.126671))
sketch3.addConstraint(Sketcher.Constraint("DistanceX", 21, 2, 20, 2, 0.360319))
sketch3.addConstraint(Sketcher.Constraint("DistanceY", 21, 2, 18, 2, 1.310811))
sketch3.addConstraint(Sketcher.Constraint("DistanceX", 22, 2, 21, 2, 0.294449))
sketch3.addConstraint(Sketcher.Constraint("DistanceX", 24, 2, 22, 2, 1.631839))
sketch3.addConstraint(Sketcher.Constraint("DistanceY", 24, 2, 10, 2, 2.32014))
sketch3.addConstraint(Sketcher.Constraint("DistanceX", 24, 2, 25, 2, 0.09076))
sketch3.addConstraint(Sketcher.Constraint("DistanceY", 2, 2, 26, 2, 0.39376))
sketch3.addConstraint(Sketcher.Constraint("Distance", 23, 3.143262))
pad3 = body3.newObject("PartDesign::Pad", "Pad002")
pad3.Profile = sketch3
pad3.setExpression("Length", "Params.pad3_length")
body4 = doc.addObject("PartDesign::Body", "Body003")

sketch4 = body4.newObject("Sketcher::SketchObject", "Sketch003")
sketch4.AttachmentSupport = (doc.getObject("XY_Plane003"), [""])
sketch4.MapMode = "FlatFace"
sketch4.addGeometry(Part.LineSegment(V(-30.2, 2.3, 0), V(-31.2, -5.2, 0)), False)
sketch4.addGeometry(Part.LineSegment(V(-31.2, -5.2, 0), V(-36.9, -5.3, 0)), False)
sketch4.addGeometry(Part.LineSegment(V(-36.9, -5.3, 0), V(-31.7, -8.4, 0)), False)
sketch4.addGeometry(Part.LineSegment(V(-31.7, -8.4, 0), V(-32.6, -14.7, 0)), False)
sketch4.addGeometry(Part.LineSegment(V(-32.6, -14.7, 0), V(-28.4, -10.4, 0)), False)
sketch4.addGeometry(Part.LineSegment(V(-28.4, -10.4, 0), V(-23.4, -13.4, 0)), False)
sketch4.addGeometry(Part.LineSegment(V(-23.4, -13.4, 0), V(-25.8, -7.7, 0)), False)
sketch4.addGeometry(Part.LineSegment(V(-25.8, -7.7, 0), V(-23.2, -5, 0)), False)
sketch4.addGeometry(Part.LineSegment(V(-23.2, -5, 0), V(-27, -5.1, 0)), False)
sketch4.addGeometry(Part.LineSegment(V(-27, -5.1, 0), V(-30.2, 2.3, 0)), False)
sketch4.addGeometry(Part.LineSegment(V(-31.4, -11.8, 0), V(-31.1, -8.8, 0)), False)
sketch4.addGeometry(Part.LineSegment(V(-31.1, -8.8, 0), V(-29.3, -9.8, 0)), False)
sketch4.addGeometry(Part.LineSegment(V(-29.3, -9.8, 0), V(-31.4, -11.8, 0)), False)
sketch4.addGeometry(Part.LineSegment(V(-34.2, -5.6, 0), V(-31.3, -5.6, 0)), False)
sketch4.addGeometry(Part.LineSegment(V(-31.3, -5.6, 0), V(-31.6, -7.4, 0)), False)
sketch4.addGeometry(Part.LineSegment(V(-31.6, -7.4, 0), V(-34.2, -5.6, 0)), False)
sketch4.addGeometry(Part.LineSegment(V(-27.8, -9.8, 0), V(-26.3, -8.3, 0)), False)
sketch4.addGeometry(Part.LineSegment(V(-26.3, -8.3, 0), V(-24.8, -11.8, 0)), False)
sketch4.addGeometry(Part.LineSegment(V(-24.8, -11.8, 0), V(-27.8, -9.8, 0)), False)
sketch4.addGeometry(Part.LineSegment(V(-30.9, -7.8, 0), V(-30.7, -5.6, 0)), False)
sketch4.addGeometry(Part.LineSegment(V(-30.7, -5.6, 0), V(-27.5, -5.6, 0)), False)
sketch4.addGeometry(Part.LineSegment(V(-27.5, -5.6, 0), V(-26.7, -7.4, 0)), False)
sketch4.addGeometry(Part.LineSegment(V(-26.7, -7.4, 0), V(-28.7, -9.2, 0)), False)
sketch4.addGeometry(Part.LineSegment(V(-28.7, -9.2, 0), V(-30.9, -7.8, 0)), False)
sketch4.addGeometry(Part.LineSegment(V(-24.8, -5.6, 0), V(-26.2, -6.9, 0)), False)
sketch4.addGeometry(Part.LineSegment(V(-26.2, -6.9, 0), V(-26.7, -5.6, 0)), False)
sketch4.addGeometry(Part.LineSegment(V(-26.7, -5.6, 0), V(-24.8, -5.6, 0)), False)
sketch4.addGeometry(Part.LineSegment(V(-27.8, -5.1, 0), V(-30.6, -5.2, 0)), False)
sketch4.addGeometry(Part.LineSegment(V(-30.6, -5.2, 0), V(-30, 0, 0)), False)
sketch4.addGeometry(Part.LineSegment(V(-30, 0, 0), V(-27.8, -5.1, 0)), False)
sketch4.addConstraint(Sketcher.Constraint("Coincident", 0, 2, 1, 1))
sketch4.addConstraint(Sketcher.Constraint("Coincident", 1, 2, 2, 1))
sketch4.addConstraint(Sketcher.Constraint("Coincident", 2, 2, 3, 1))
sketch4.addConstraint(Sketcher.Constraint("Coincident", 3, 2, 4, 1))
sketch4.addConstraint(Sketcher.Constraint("Coincident", 4, 2, 5, 1))
sketch4.addConstraint(Sketcher.Constraint("Coincident", 5, 2, 6, 1))
sketch4.addConstraint(Sketcher.Constraint("Coincident", 6, 2, 7, 1))
sketch4.addConstraint(Sketcher.Constraint("Coincident", 7, 2, 8, 1))
sketch4.addConstraint(Sketcher.Constraint("Coincident", 8, 2, 9, 1))
sketch4.addConstraint(Sketcher.Constraint("Coincident", 9, 2, 0, 1))
sketch4.addConstraint(Sketcher.Constraint("Coincident", 10, 2, 11, 1))
sketch4.addConstraint(Sketcher.Constraint("Coincident", 11, 2, 12, 1))
sketch4.addConstraint(Sketcher.Constraint("Coincident", 12, 2, 10, 1))
sketch4.addConstraint(Sketcher.Constraint("Coincident", 13, 2, 14, 1))
sketch4.addConstraint(Sketcher.Constraint("Coincident", 14, 2, 15, 1))
sketch4.addConstraint(Sketcher.Constraint("Coincident", 15, 2, 13, 1))
sketch4.addConstraint(Sketcher.Constraint("Coincident", 16, 2, 17, 1))
sketch4.addConstraint(Sketcher.Constraint("Coincident", 17, 2, 18, 1))
sketch4.addConstraint(Sketcher.Constraint("Coincident", 18, 2, 16, 1))
sketch4.addConstraint(Sketcher.Constraint("Coincident", 19, 2, 20, 1))
sketch4.addConstraint(Sketcher.Constraint("Coincident", 20, 2, 21, 1))
sketch4.addConstraint(Sketcher.Constraint("Coincident", 21, 2, 22, 1))
sketch4.addConstraint(Sketcher.Constraint("Coincident", 22, 2, 23, 1))
sketch4.addConstraint(Sketcher.Constraint("Coincident", 23, 2, 19, 1))
sketch4.addConstraint(Sketcher.Constraint("Coincident", 24, 2, 25, 1))
sketch4.addConstraint(Sketcher.Constraint("Coincident", 25, 2, 26, 1))
sketch4.addConstraint(Sketcher.Constraint("Coincident", 26, 2, 24, 1))
sketch4.addConstraint(Sketcher.Constraint("Coincident", 27, 2, 28, 1))
sketch4.addConstraint(Sketcher.Constraint("Coincident", 28, 2, 29, 1))
sketch4.addConstraint(Sketcher.Constraint("Coincident", 29, 2, 27, 1))
sketch4.addConstraint(Sketcher.Constraint("Horizontal", 13))
sketch4.addConstraint(Sketcher.Constraint("Horizontal", 20))
sketch4.addConstraint(Sketcher.Constraint("Horizontal", 26))
sketch4.addConstraint(Sketcher.Constraint("PointOnObject", 28, 2, -1))
sketch4.addConstraint(Sketcher.Constraint("Parallel", 0, 3))
sketch4.addConstraint(Sketcher.Constraint("Parallel", 2, 5))
sketch4.addConstraint(Sketcher.Constraint("Parallel", 4, 7))
sketch4.addConstraint(Sketcher.Constraint("Parallel", 1, 8))
sketch4.addConstraint(Sketcher.Constraint("Parallel", 6, 9))
sketch4.addConstraint(Sketcher.Constraint("Parallel", 5, 11))
sketch4.addConstraint(Sketcher.Constraint("Parallel", 3, 14))
sketch4.addConstraint(Sketcher.Constraint("Parallel", 7, 16))
sketch4.addConstraint(Sketcher.Constraint("Parallel", 15, 18))
sketch4.addConstraint(Sketcher.Constraint("Parallel", 10, 19))
sketch4.addConstraint(Sketcher.Constraint("Parallel", 17, 21))
sketch4.addConstraint(Sketcher.Constraint("Parallel", 12, 22))
sketch4.addConstraint(Sketcher.Constraint("Parallel", 18, 23))
sketch4.addConstraint(Sketcher.Constraint("Parallel", 22, 24))
sketch4.addConstraint(Sketcher.Constraint("Parallel", 9, 25))
sketch4.addConstraint(Sketcher.Constraint("Parallel", 8, 27))
sketch4.addConstraint(Sketcher.Constraint("Parallel", 19, 28))
sketch4.addConstraint(Sketcher.Constraint("Parallel", 21, 29))
sketch4.addConstraint(Sketcher.Constraint("Horizontal", 12, 2, 17, 2))
sketch4.addConstraint(Sketcher.Constraint("Horizontal", 15, 2, 19, 2))
sketch4.addConstraint(Sketcher.Constraint("Horizontal", 20, 2, 25, 2))
sketch4.addConstraint(Sketcher.Constraint("Vertical", 17, 2, 26, 2))
sketch4.addConstraint(Sketcher.Constraint("DistanceY", 19, 2, 27, 2, 0.46))
sketch4.addConstraint(Sketcher.Constraint("Distance", 6, 6.158001))
sketch4.addConstraint(Sketcher.Constraint("DistanceX", 26, 1, 26, 2, 1.9519))
sketch4.addConstraint(Sketcher.Constraint("DistanceX", 5, 2, 7, 2, 0.187999))
sketch4.addConstraint(Sketcher.Constraint("DistanceX", 0, 2, 11, 2, 1.933))
sketch4.addConstraint(Sketcher.Constraint("Distance", 4, 6.038199))
sketch4.addConstraint(Sketcher.Constraint("Distance", 14, 1.763099))
sketch4.addConstraint(Sketcher.Constraint("DistanceX", 8, 2, -1, 1, 26.969299))
sketch4.addConstraint(Sketcher.Constraint("DistanceX", 20, 2, -1, 1, 27.534601))
sketch4.addConstraint(Sketcher.Constraint("DistanceY", 4, 2, 2, 2, 1.987501))
sketch4.addConstraint(Sketcher.Constraint("DistanceX", 3, 2, 12, 2, 1.169302))
sketch4.addConstraint(Sketcher.Constraint("DistanceX", 14, 2, 13, 2, 0.244402))
sketch4.addConstraint(Sketcher.Constraint("DistanceY", 16, 2, 6, 2, 0.5442))
sketch4.addConstraint(Sketcher.Constraint("DistanceY", 11, 2, 18, 2, 0.022899))
sketch4.addConstraint(Sketcher.Constraint("DistanceX", 10, 2, 23, 2, 0.117201))
sketch4.addConstraint(Sketcher.Constraint("DistanceX", 16, 2, 24, 2, 0.168298))
sketch4.addConstraint(Sketcher.Constraint("DistanceY", 20, 2, 29, 2, 0.5171))
sketch4.addConstraint(Sketcher.Constraint("Distance", 7, 3.79587))
sketch4.addConstraint(Sketcher.Constraint("Distance", 8, 3.793709))
sketch4.addConstraint(Sketcher.Constraint("Distance", 10, 3.019822))
sketch4.addConstraint(Sketcher.Constraint("Distance", 12, 2.865371))
sketch4.addConstraint(Sketcher.Constraint("Distance", 15, 3.199859))
sketch4.addConstraint(Sketcher.Constraint("Distance", 17, 3.822158))
sketch4.addConstraint(Sketcher.Constraint("Distance", 18, 3.614889))
sketch4.addConstraint(Sketcher.Constraint("Distance", 22, 2.663239))
sketch4.addConstraint(Sketcher.Constraint("Distance", 23, 2.704821))
sketch4.addConstraint(Sketcher.Constraint("DistanceX", 20, 1, 20, 2, 3.164555))
sketch4.addConstraint(Sketcher.Constraint("DistanceX", 0, 2, -1, 1, 31.24474))
sketch4.addConstraint(Sketcher.Constraint("DistanceY", 0, 2, -1, 1, 5.176631))
sketch4.addConstraint(Sketcher.Constraint("DistanceY", 5, 2, -1, 1, 13.390841))
sketch4.addConstraint(Sketcher.Constraint("DistanceY", 8, 2, -1, 1, 5.091871))
sketch4.addConstraint(Sketcher.Constraint("DistanceX", 16, 2, -1, 1, 26.345131))
sketch4.addConstraint(Sketcher.Constraint("DistanceX", 28, 2, -1, 1, 30.047791))
sketch4.addConstraint(Sketcher.Constraint("DistanceX", 15, 2, 2, 2, 2.537651))
pad4 = body4.newObject("PartDesign::Pad", "Pad003")
pad4.Profile = sketch4
pad4.setExpression("Length", "Params.pad4_length")

doc.recompute()
